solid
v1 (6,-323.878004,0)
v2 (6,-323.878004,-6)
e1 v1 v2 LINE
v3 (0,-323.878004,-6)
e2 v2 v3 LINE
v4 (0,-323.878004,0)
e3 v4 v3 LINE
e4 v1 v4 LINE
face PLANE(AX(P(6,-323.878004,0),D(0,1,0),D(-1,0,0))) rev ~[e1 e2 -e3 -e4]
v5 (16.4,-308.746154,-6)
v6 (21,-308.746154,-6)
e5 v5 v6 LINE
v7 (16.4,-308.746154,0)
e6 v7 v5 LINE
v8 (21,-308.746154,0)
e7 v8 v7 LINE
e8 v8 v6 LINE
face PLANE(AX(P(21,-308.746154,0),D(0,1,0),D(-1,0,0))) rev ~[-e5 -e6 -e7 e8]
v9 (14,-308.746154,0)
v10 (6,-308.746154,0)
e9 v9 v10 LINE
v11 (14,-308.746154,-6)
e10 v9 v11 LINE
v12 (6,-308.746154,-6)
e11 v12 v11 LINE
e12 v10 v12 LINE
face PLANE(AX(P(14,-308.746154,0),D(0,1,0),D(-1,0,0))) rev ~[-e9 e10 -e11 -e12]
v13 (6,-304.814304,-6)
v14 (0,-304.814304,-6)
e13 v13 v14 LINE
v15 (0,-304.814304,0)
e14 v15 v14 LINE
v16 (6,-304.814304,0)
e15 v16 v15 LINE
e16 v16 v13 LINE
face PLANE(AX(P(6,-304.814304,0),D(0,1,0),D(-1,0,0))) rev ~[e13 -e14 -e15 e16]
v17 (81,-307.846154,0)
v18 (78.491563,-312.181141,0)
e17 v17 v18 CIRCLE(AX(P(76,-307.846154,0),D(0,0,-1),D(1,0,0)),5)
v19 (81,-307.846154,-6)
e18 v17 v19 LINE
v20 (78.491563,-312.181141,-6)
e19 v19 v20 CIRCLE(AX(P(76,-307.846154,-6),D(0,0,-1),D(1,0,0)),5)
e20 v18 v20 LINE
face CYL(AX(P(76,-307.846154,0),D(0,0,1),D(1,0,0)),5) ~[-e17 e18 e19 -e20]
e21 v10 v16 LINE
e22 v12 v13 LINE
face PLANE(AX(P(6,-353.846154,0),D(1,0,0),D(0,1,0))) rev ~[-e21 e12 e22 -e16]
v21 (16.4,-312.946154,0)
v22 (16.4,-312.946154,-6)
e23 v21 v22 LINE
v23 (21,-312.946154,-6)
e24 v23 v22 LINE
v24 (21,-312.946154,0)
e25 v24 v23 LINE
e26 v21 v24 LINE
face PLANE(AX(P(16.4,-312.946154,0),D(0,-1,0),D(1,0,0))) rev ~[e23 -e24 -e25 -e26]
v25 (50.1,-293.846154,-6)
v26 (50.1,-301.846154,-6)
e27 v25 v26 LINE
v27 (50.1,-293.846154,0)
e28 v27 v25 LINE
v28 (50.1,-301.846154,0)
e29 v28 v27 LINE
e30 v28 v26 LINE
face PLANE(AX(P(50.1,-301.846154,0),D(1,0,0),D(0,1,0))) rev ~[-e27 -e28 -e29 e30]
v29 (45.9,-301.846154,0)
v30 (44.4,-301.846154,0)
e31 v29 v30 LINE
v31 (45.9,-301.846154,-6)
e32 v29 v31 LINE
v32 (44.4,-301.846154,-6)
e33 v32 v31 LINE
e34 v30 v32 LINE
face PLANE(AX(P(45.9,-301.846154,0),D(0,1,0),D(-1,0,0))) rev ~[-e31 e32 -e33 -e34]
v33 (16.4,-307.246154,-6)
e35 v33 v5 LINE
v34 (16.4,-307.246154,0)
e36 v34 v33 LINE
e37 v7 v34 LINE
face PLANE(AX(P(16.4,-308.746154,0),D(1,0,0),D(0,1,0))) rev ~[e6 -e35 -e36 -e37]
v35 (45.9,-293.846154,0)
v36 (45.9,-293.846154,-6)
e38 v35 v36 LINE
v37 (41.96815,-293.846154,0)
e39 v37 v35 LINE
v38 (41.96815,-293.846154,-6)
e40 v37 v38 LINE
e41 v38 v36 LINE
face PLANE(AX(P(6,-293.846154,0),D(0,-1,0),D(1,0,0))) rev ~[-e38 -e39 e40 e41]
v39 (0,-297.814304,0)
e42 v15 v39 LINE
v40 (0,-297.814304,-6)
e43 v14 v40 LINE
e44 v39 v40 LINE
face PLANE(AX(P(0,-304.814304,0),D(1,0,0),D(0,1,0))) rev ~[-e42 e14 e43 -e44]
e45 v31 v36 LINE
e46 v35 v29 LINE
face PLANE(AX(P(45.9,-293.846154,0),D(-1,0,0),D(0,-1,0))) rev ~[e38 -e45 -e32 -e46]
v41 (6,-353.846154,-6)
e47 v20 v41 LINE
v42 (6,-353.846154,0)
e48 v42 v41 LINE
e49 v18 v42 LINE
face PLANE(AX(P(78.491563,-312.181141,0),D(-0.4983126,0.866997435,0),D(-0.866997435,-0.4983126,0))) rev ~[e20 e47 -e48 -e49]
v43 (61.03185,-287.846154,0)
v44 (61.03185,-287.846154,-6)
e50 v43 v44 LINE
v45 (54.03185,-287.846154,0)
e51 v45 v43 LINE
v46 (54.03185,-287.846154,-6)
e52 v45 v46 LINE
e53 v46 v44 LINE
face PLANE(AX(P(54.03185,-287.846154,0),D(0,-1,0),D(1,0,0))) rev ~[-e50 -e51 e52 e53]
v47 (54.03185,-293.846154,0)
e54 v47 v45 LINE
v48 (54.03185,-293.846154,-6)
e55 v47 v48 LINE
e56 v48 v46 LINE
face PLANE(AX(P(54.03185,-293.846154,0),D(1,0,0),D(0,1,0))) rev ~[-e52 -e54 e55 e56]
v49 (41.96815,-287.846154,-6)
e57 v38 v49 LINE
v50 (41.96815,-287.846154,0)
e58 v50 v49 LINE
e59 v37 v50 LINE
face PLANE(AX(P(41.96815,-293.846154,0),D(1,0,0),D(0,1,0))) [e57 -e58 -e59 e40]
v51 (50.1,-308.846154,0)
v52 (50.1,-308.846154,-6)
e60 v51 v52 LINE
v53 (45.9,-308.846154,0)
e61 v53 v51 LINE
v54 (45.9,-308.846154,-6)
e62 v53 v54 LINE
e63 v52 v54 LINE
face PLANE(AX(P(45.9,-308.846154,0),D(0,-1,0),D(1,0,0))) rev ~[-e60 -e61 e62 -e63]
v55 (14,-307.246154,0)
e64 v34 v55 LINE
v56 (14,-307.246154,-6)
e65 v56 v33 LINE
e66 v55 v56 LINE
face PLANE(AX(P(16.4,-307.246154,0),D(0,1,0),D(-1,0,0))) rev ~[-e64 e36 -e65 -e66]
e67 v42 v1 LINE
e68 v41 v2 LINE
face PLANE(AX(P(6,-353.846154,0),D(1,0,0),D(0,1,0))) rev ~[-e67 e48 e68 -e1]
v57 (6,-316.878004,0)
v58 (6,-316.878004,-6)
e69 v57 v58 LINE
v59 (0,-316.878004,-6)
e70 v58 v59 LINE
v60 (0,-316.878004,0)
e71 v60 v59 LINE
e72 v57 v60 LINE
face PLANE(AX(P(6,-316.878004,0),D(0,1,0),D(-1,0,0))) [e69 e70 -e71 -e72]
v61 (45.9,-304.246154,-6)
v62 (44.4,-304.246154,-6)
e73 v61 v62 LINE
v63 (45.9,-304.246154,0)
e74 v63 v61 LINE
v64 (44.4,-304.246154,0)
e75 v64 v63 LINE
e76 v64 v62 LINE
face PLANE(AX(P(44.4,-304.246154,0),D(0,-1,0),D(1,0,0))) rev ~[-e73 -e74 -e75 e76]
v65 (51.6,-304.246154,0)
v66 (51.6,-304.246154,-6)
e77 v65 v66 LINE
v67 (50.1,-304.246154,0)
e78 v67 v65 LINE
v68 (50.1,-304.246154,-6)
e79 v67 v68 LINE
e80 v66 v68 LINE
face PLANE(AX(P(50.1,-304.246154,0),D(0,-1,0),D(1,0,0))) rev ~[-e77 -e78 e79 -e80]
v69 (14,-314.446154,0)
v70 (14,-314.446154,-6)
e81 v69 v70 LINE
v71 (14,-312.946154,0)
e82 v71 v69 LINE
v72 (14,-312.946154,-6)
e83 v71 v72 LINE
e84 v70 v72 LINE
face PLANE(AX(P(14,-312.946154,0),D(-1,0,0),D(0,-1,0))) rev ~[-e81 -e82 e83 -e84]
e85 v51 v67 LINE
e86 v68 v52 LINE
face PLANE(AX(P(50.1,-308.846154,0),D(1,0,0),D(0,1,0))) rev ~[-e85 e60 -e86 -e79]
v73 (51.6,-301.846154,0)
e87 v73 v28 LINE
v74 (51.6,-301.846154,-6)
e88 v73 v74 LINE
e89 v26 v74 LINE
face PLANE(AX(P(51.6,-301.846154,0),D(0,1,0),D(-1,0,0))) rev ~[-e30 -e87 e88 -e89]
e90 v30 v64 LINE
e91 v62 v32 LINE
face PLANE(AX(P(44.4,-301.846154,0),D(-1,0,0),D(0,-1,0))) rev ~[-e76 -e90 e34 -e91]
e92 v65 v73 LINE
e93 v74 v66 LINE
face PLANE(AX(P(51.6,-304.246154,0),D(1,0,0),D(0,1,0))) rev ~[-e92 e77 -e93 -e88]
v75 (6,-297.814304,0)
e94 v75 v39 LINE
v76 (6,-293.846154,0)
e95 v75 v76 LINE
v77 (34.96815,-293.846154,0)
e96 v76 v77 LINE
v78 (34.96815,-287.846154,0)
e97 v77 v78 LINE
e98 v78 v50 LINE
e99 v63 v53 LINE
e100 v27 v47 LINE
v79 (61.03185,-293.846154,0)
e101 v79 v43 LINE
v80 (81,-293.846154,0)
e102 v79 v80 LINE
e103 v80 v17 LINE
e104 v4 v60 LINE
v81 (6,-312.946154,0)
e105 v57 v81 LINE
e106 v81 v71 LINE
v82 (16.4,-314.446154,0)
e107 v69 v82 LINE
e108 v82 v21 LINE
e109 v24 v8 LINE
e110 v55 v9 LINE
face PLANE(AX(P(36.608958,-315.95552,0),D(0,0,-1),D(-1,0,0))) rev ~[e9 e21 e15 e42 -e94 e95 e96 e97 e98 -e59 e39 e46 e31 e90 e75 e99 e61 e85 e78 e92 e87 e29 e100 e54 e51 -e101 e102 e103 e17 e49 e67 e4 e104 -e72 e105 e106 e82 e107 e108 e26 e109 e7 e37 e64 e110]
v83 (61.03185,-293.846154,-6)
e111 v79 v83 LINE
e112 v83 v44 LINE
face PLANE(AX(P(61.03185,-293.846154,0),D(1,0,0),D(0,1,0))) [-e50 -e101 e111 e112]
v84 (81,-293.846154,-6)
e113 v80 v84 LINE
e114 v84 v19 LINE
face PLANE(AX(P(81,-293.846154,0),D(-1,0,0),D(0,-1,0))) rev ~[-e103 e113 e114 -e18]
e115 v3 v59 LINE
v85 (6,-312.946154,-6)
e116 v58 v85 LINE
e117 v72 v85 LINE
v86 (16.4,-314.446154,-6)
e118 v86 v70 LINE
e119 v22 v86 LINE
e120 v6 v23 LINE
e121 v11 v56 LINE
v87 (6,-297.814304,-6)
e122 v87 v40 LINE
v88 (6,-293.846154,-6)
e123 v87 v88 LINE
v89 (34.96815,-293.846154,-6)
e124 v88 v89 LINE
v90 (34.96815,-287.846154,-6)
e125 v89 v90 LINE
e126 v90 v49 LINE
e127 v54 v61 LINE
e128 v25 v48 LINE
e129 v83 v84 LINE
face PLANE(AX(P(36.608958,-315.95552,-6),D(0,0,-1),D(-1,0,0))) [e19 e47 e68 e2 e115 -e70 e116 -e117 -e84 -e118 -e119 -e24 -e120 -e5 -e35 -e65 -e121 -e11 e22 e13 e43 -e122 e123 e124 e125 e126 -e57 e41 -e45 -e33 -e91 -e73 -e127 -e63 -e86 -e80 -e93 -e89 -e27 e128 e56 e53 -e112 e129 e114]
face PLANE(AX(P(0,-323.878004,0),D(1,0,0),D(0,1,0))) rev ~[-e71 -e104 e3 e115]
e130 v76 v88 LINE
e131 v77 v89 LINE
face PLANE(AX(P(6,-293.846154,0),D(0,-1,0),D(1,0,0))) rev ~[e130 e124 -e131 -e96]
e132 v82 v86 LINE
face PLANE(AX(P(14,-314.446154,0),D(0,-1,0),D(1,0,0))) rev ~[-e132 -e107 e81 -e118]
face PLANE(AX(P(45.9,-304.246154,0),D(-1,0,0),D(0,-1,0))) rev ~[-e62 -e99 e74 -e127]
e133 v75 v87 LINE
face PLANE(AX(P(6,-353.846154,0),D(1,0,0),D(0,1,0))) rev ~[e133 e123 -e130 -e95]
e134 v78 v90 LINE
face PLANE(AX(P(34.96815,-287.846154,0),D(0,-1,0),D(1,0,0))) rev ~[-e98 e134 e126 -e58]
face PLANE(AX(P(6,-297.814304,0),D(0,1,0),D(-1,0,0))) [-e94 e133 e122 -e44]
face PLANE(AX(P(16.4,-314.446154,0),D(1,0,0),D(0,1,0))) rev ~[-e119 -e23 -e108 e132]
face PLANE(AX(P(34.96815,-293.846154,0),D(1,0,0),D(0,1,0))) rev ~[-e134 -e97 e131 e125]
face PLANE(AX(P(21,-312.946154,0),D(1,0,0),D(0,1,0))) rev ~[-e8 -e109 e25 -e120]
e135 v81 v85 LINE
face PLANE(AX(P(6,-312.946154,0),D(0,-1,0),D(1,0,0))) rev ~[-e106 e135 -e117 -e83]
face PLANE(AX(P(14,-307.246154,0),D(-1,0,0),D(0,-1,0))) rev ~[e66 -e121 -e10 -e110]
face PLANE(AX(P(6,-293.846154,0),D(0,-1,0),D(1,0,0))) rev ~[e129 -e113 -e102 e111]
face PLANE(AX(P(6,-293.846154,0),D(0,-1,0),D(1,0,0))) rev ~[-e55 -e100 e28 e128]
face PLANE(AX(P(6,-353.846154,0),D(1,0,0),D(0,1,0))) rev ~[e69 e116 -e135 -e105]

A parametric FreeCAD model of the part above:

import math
import FreeCAD as App
import Part
import Sketcher
from FreeCAD import Vector
Q = App.Units.Quantity

doc = App.newDocument("Part")
body = doc.addObject("PartDesign::Body", "Body")

# Sketch on XY plane
sketch1 = body.newObject("Sketcher::SketchObject", "Sketch")
sketch1.AttachmentSupport = (doc.getObject("XY_Plane"), [""])
sketch1.MapMode = "FlatFace"
sketch1.addGeometry(Part.LineSegment(Vector(81, -308, 0), Vector(81, -294, 0)), False)
sketch1.addGeometry(Part.LineSegment(Vector(81, -294, 0), Vector(6, -294, 0)), False)
sketch1.addGeometry(Part.LineSegment(Vector(6, -294, 0), Vector(6, -354, 0)), False)
sketch1.addGeometry(Part.LineSegment(Vector(6, -354, 0), Vector(78, -312, 0)), False)
sketch1.addGeometry(Part.ArcOfCircle(Part.Circle(Vector(76, -308, 0), Vector(0, 0, 1), 5), math.radians(-60), math.radians(0)), False)
sketch1.addConstraint(Sketcher.Constraint("Coincident", 0, 2, 1, 1))
sketch1.addConstraint(Sketcher.Constraint("Coincident", 1, 2, 2, 1))
sketch1.addConstraint(Sketcher.Constraint("Coincident", 2, 2, 3, 1))
sketch1.addConstraint(Sketcher.Constraint("Tangent", 3, 2, 4, 1))
sketch1.addConstraint(Sketcher.Constraint("Tangent", 4, 2, 0, 1))
sketch1.addConstraint(Sketcher.Constraint("Vertical", 0))
sketch1.addConstraint(Sketcher.Constraint("Horizontal", 1))
sketch1.addConstraint(Sketcher.Constraint("Vertical", 2))
sketch1.addConstraint(Sketcher.Constraint("Radius", 4, Q("5 mm")))
sketch1.addConstraint(Sketcher.Constraint("DistanceX", 1, 2, 1, 1, Q("75 mm")))
sketch1.addConstraint(Sketcher.Constraint("DistanceY", 0, 1, 0, 2, Q("14 mm")))
sketch1.addConstraint(Sketcher.Constraint("DistanceY", 2, 2, 2, 1, Q("60 mm")))
sketch1.addConstraint(Sketcher.Constraint("DistanceX", -1, 1, 4, 3, Q("76 mm")))
sketch1.addConstraint(Sketcher.Constraint("DistanceY", 3, 2, -1, 1, Q("312.181141 mm")))
pad1 = body.newObject("PartDesign::Pad", "Pad")
pad1.Profile = sketch1
pad1.Length = 6
pad1.Reversed = True

# Sketch on XY plane
sketch2 = body.newObject("Sketcher::SketchObject", "Sketch001")
sketch2.AttachmentSupport = (doc.getObject("XY_Plane"), [""])
sketch2.MapMode = "FlatFace"
sketch2.addGeometry(Part.LineSegment(Vector(0, -324, 0), Vector(6, -324, 0)), False)
sketch2.addGeometry(Part.LineSegment(Vector(6, -324, 0), Vector(6, -317, 0)), False)
sketch2.addGeometry(Part.LineSegment(Vector(6, -317, 0), Vector(0, -317, 0)), False)
sketch2.addGeometry(Part.LineSegment(Vector(0, -317, 0), Vector(0, -324, 0)), False)
sketch2.addGeometry(Part.LineSegment(Vector(0, -305, 0), Vector(6, -305, 0)), False)
sketch2.addGeometry(Part.LineSegment(Vector(6, -305, 0), Vector(6, -298, 0)), False)
sketch2.addGeometry(Part.LineSegment(Vector(6, -298, 0), Vector(0, -298, 0)), False)
sketch2.addGeometry(Part.LineSegment(Vector(0, -298, 0), Vector(0, -305, 0)), False)
sketch2.addConstraint(Sketcher.Constraint("Coincident", 0, 2, 1, 1))
sketch2.addConstraint(Sketcher.Constraint("Coincident", 1, 2, 2, 1))
sketch2.addConstraint(Sketcher.Constraint("Coincident", 2, 2, 3, 1))
sketch2.addConstraint(Sketcher.Constraint("Coincident", 3, 2, 0, 1))
sketch2.addConstraint(Sketcher.Constraint("Coincident", 4, 2, 5, 1))
sketch2.addConstraint(Sketcher.Constraint("Coincident", 5, 2, 6, 1))
sketch2.addConstraint(Sketcher.Constraint("Coincident", 6, 2, 7, 1))
sketch2.addConstraint(Sketcher.Constraint("Coincident", 7, 2, 4, 1))
sketch2.addConstraint(Sketcher.Constraint("Horizontal", 0))
sketch2.addConstraint(Sketcher.Constraint("Vertical", 1))
sketch2.addConstraint(Sketcher.Constraint("Horizontal", 2))
sketch2.addConstraint(Sketcher.Constraint("Vertical", 3))
sketch2.addConstraint(Sketcher.Constraint("Horizontal", 4))
sketch2.addConstraint(Sketcher.Constraint("Vertical", 5))
sketch2.addConstraint(Sketcher.Constraint("Horizontal", 6))
sketch2.addConstraint(Sketcher.Constraint("Vertical", 7))
sketch2.addConstraint(Sketcher.Constraint("PointOnObject", 2, 2, -2))
sketch2.addConstraint(Sketcher.Constraint("PointOnObject", 6, 2, -2))
sketch2.addConstraint(Sketcher.Constraint("Vertical", 1, 2, 4, 2))
sketch2.addConstraint(Sketcher.Constraint("Equal", 3, 5))
sketch2.addConstraint(Sketcher.Constraint("DistanceX", 0, 1, 0, 2, Q("6 mm")))
sketch2.addConstraint(Sketcher.Constraint("DistanceY", 1, 1, 1, 2, Q("7 mm")))
sketch2.addConstraint(Sketcher.Constraint("DistanceY", 1, 2, 4, 2, Q("12.0637 mm")))
sketch2.addConstraint(Sketcher.Constraint("DistanceY", 0, 2, -1, 1, Q("323.878004 mm")))
pad2 = body.newObject("PartDesign::Pad", "Pad001")
pad2.Profile = sketch2
pad2.Length = 6
pad2.Reversed = True

# Sketch on XY plane
sketch3 = body.newObject("Sketcher::SketchObject", "Sketch002")
sketch3.AttachmentSupport = (doc.getObject("XY_Plane"), [""])
sketch3.MapMode = "FlatFace"
sketch3.addGeometry(Part.LineSegment(Vector(14, -312.9, 0), Vector(14, -314.4, 0)), False)
sketch3.addGeometry(Part.LineSegment(Vector(14, -314.4, 0), Vector(16.4, -314.4, 0)), False)
sketch3.addGeometry(Part.LineSegment(Vector(16.4, -314.4, 0), Vector(16.4, -312.9, 0)), False)
sketch3.addGeometry(Part.LineSegment(Vector(16.4, -312.9, 0), Vector(21, -312.9, 0)), False)
sketch3.addGeometry(Part.LineSegment(Vector(21, -312.9, 0), Vector(21, -308.7, 0)), False)
sketch3.addGeometry(Part.LineSegment(Vector(21, -308.7, 0), Vector(16.4, -308.7, 0)), False)
sketch3.addGeometry(Part.LineSegment(Vector(16.4, -308.7, 0), Vector(16.4, -307.2, 0)), False)
sketch3.addGeometry(Part.LineSegment(Vector(16.4, -307.2, 0), Vector(14, -307.2, 0)), False)
sketch3.addGeometry(Part.LineSegment(Vector(14, -307.2, 0), Vector(14, -308.7, 0)), False)
sketch3.addGeometry(Part.LineSegment(Vector(14, -308.7, 0), Vector(6, -308.7, 0)), False)
sketch3.addGeometry(Part.LineSegment(Vector(6, -308.7, 0), Vector(6, -312.9, 0)), False)
sketch3.addGeometry(Part.LineSegment(Vector(6, -312.9, 0), Vector(14, -312.9, 0)), False)
sketch3.addConstraint(Sketcher.Constraint("Coincident", 0, 2, 1, 1))
sketch3.addConstraint(Sketcher.Constraint("Coincident", 1, 2, 2, 1))
sketch3.addConstraint(Sketcher.Constraint("Coincident", 2, 2, 3, 1))
sketch3.addConstraint(Sketcher.Constraint("Coincident", 3, 2, 4, 1))
sketch3.addConstraint(Sketcher.Constraint("Coincident", 4, 2, 5, 1))
sketch3.addConstraint(Sketcher.Constraint("Coincident", 5, 2, 6, 1))
sketch3.addConstraint(Sketcher.Constraint("Coincident", 6, 2, 7, 1))
sketch3.addConstraint(Sketcher.Constraint("Coincident", 7, 2, 8, 1))
sketch3.addConstraint(Sketcher.Constraint("Coincident", 8, 2, 9, 1))
sketch3.addConstraint(Sketcher.Constraint("Coincident", 9, 2, 10, 1))
sketch3.addConstraint(Sketcher.Constraint("Coincident", 10, 2, 11, 1))
sketch3.addConstraint(Sketcher.Constraint("Coincident", 11, 2, 0, 1))
sketch3.addConstraint(Sketcher.Constraint("Vertical", 0))
sketch3.addConstraint(Sketcher.Constraint("Horizontal", 1))
sketch3.addConstraint(Sketcher.Constraint("Vertical", 2))
sketch3.addConstraint(Sketcher.Constraint("Horizontal", 3))
sketch3.addConstraint(Sketcher.Constraint("Vertical", 4))
sketch3.addConstraint(Sketcher.Constraint("Horizontal", 5))
sketch3.addConstraint(Sketcher.Constraint("Vertical", 6))
sketch3.addConstraint(Sketcher.Constraint("Horizontal", 7))
sketch3.addConstraint(Sketcher.Constraint("Vertical", 8))
sketch3.addConstraint(Sketcher.Constraint("Horizontal", 9))
sketch3.addConstraint(Sketcher.Constraint("Vertical", 10))
sketch3.addConstraint(Sketcher.Constraint("Horizontal", 11))
sketch3.addConstraint(Sketcher.Constraint("Horizontal", 5, 2, 8, 2))
sketch3.addConstraint(Sketcher.Constraint("Horizontal", 3, 2, 10, 2))
sketch3.addConstraint(Sketcher.Constraint("Vertical", 2, 2, 5, 2))
sketch3.addConstraint(Sketcher.Constraint("Vertical", 0, 2, 7, 2))
sketch3.addConstraint(Sketcher.Constraint("Equal", 2, 6))
sketch3.addConstraint(Sketcher.Constraint("DistanceX", 9, 2, 9, 1, Q("8 mm")))
sketch3.addConstraint(Sketcher.Constraint("DistanceX", 1, 1, 1, 2, Q("2.4 mm")))
sketch3.addConstraint(Sketcher.Constraint("DistanceX", 3, 1, 3, 2, Q("4.6 mm")))
sketch3.addConstraint(Sketcher.Constraint("DistanceY", 0, 2, 0, 1, Q("1.5 mm")))
sketch3.addConstraint(Sketcher.Constraint("DistanceY", 4, 1, 4, 2, Q("4.2 mm")))
sketch3.addConstraint(Sketcher.Constraint("DistanceX", -1, 1, 0, 2, Q("14 mm")))
sketch3.addConstraint(Sketcher.Constraint("DistanceY", 0, 2, -1, 1, Q("314.446154 mm")))
pocket1 = body.newObject("PartDesign::Pocket", "Pocket")
pocket1.Profile = sketch3
pocket1.Type = "ThroughAll"

# Sketch on XY plane
sketch4 = body.newObject("Sketcher::SketchObject", "Sketch003")
sketch4.AttachmentSupport = (doc.getObject("XY_Plane"), [""])
sketch4.MapMode = "FlatFace"
sketch4.addGeometry(Part.LineSegment(Vector(35, -288, 0), Vector(35, -294, 0)), False)
sketch4.addGeometry(Part.LineSegment(Vector(35, -294, 0), Vector(42, -294, 0)), False)
sketch4.addGeometry(Part.LineSegment(Vector(42, -294, 0), Vector(42, -288, 0)), False)
sketch4.addGeometry(Part.LineSegment(Vector(42, -288, 0), Vector(35, -288, 0)), False)
sketch4.addGeometry(Part.LineSegment(Vector(54, -288, 0), Vector(54, -294, 0)), False)
sketch4.addGeometry(Part.LineSegment(Vector(54, -294, 0), Vector(61, -294, 0)), False)
sketch4.addGeometry(Part.LineSegment(Vector(61, -294, 0), Vector(61, -288, 0)), False)
sketch4.addGeometry(Part.LineSegment(Vector(61, -288, 0), Vector(54, -288, 0)), False)
sketch4.addConstraint(Sketcher.Constraint("Coincident", 0, 2, 1, 1))
sketch4.addConstraint(Sketcher.Constraint("Coincident", 1, 2, 2, 1))
sketch4.addConstraint(Sketcher.Constraint("Coincident", 2, 2, 3, 1))
sketch4.addConstraint(Sketcher.Constraint("Coincident", 3, 2, 0, 1))
sketch4.addConstraint(Sketcher.Constraint("Coincident", 4, 2, 5, 1))
sketch4.addConstraint(Sketcher.Constraint("Coincident", 5, 2, 6, 1))
sketch4.addConstraint(Sketcher.Constraint("Coincident", 6, 2, 7, 1))
sketch4.addConstraint(Sketcher.Constraint("Coincident", 7, 2, 4, 1))
sketch4.addConstraint(Sketcher.Constraint("Vertical", 0))
sketch4.addConstraint(Sketcher.Constraint("Horizontal", 1))
sketch4.addConstraint(Sketcher.Constraint("Vertical", 2))
sketch4.addConstraint(Sketcher.Constraint("Horizontal", 3))
sketch4.addConstraint(Sketcher.Constraint("Vertical", 4))
sketch4.addConstraint(Sketcher.Constraint("Horizontal", 5))
sketch4.addConstraint(Sketcher.Constraint("Vertical", 6))
sketch4.addConstraint(Sketcher.Constraint("Horizontal", 7))
sketch4.addConstraint(Sketcher.Constraint("Horizontal", 1, 2, 4, 2))
sketch4.addConstraint(Sketcher.Constraint("Horizontal", 3, 2, 6, 2))
sketch4.addConstraint(Sketcher.Constraint("Equal", 3, 5))
sketch4.addConstraint(Sketcher.Constraint("DistanceX", 1, 1, 1, 2, Q("7 mm")))
sketch4.addConstraint(Sketcher.Constraint("DistanceY", 0, 2, 0, 1, Q("6 mm")))
sketch4.addConstraint(Sketcher.Constraint("DistanceX", 1, 2, 4, 2, Q("12.0637 mm")))
sketch4.addConstraint(Sketcher.Constraint("DistanceX", -1, 1, 0, 2, Q("34.96815 mm")))
sketch4.addConstraint(Sketcher.Constraint("DistanceY", 0, 2, -1, 1, Q("293.846154 mm")))
pad3 = body.newObject("PartDesign::Pad", "Pad002")
pad3.Profile = sketch4
pad3.Length = 6
pad3.Reversed = True

# Sketch on XY plane
sketch5 = body.newObject("Sketcher::SketchObject", "Sketch004")
sketch5.AttachmentSupport = (doc.getObject("XY_Plane"), [""])
sketch5.MapMode = "FlatFace"
sketch5.addGeometry(Part.LineSegment(Vector(45.9, -301.8, 0), Vector(44.4, -301.8, 0)), False)
sketch5.addGeometry(Part.LineSegment(Vector(44.4, -301.8, 0), Vector(44.4, -304.2, 0)), False)
sketch5.addGeometry(Part.LineSegment(Vector(44.4, -304.2, 0), Vector(45.9, -304.2, 0)), False)
sketch5.addGeometry(Part.LineSegment(Vector(45.9, -304.2, 0), Vector(45.9, -308.8, 0)), False)
sketch5.addGeometry(Part.LineSegment(Vector(45.9, -308.8, 0), Vector(50.1, -308.8, 0)), False)
sketch5.addGeometry(Part.LineSegment(Vector(50.1, -308.8, 0), Vector(50.1, -304.2, 0)), False)
sketch5.addGeometry(Part.LineSegment(Vector(50.1, -304.2, 0), Vector(51.6, -304.2, 0)), False)
sketch5.addGeometry(Part.LineSegment(Vector(51.6, -304.2, 0), Vector(51.6, -301.8, 0)), False)
sketch5.addGeometry(Part.LineSegment(Vector(51.6, -301.8, 0), Vector(50.1, -301.8, 0)), False)
sketch5.addGeometry(Part.LineSegment(Vector(50.1, -301.8, 0), Vector(50.1, -293.8, 0)), False)
sketch5.addGeometry(Part.LineSegment(Vector(50.1, -293.8, 0), Vector(45.9, -293.8, 0)), False)
sketch5.addGeometry(Part.LineSegment(Vector(45.9, -293.8, 0), Vector(45.9, -301.8, 0)), False)
sketch5.addConstraint(Sketcher.Constraint("Coincident", 0, 2, 1, 1))
sketch5.addConstraint(Sketcher.Constraint("Coincident", 1, 2, 2, 1))
sketch5.addConstraint(Sketcher.Constraint("Coincident", 2, 2, 3, 1))
sketch5.addConstraint(Sketcher.Constraint("Coincident", 3, 2, 4, 1))
sketch5.addConstraint(Sketcher.Constraint("Coincident", 4, 2, 5, 1))
sketch5.addConstraint(Sketcher.Constraint("Coincident", 5, 2, 6, 1))
sketch5.addConstraint(Sketcher.Constraint("Coincident", 6, 2, 7, 1))
sketch5.addConstraint(Sketcher.Constraint("Coincident", 7, 2, 8, 1))
sketch5.addConstraint(Sketcher.Constraint("Coincident", 8, 2, 9, 1))
sketch5.addConstraint(Sketcher.Constraint("Coincident", 9, 2, 10, 1))
sketch5.addConstraint(Sketcher.Constraint("Coincident", 10, 2, 11, 1))
sketch5.addConstraint(Sketcher.Constraint("Coincident", 11, 2, 0, 1))
sketch5.addConstraint(Sketcher.Constraint("Horizontal", 0))
sketch5.addConstraint(Sketcher.Constraint("Vertical", 1))
sketch5.addConstraint(Sketcher.Constraint("Horizontal", 2))
sketch5.addConstraint(Sketcher.Constraint("Vertical", 3))
sketch5.addConstraint(Sketcher.Constraint("Horizontal", 4))
sketch5.addConstraint(Sketcher.Constraint("Vertical", 5))
sketch5.addConstraint(Sketcher.Constraint("Horizontal", 6))
sketch5.addConstraint(Sketcher.Constraint("Vertical", 7))
sketch5.addConstraint(Sketcher.Constraint("Horizontal", 8))
sketch5.addConstraint(Sketcher.Constraint("Vertical", 9))
sketch5.addConstraint(Sketcher.Constraint("Horizontal", 10))
sketch5.addConstraint(Sketcher.Constraint("Vertical", 11))
sketch5.addConstraint(Sketcher.Constraint("Horizontal", 2, 2, 5, 2))
sketch5.addConstraint(Sketcher.Constraint("Horizontal", 0, 2, 7, 2))
sketch5.addConstraint(Sketcher.Constraint("Vertical", 5, 2, 8, 2))
sketch5.addConstraint(Sketcher.Constraint("Vertical", 3, 2, 10, 2))
sketch5.addConstraint(Sketcher.Constraint("Equal", 2, 6))
sketch5.addConstraint(Sketcher.Constraint("DistanceY", 9, 1, 9, 2, Q("8 mm")))
sketch5.addConstraint(Sketcher.Constraint("DistanceX", 0, 2, 0, 1, Q("1.5 mm")))
sketch5.addConstraint(Sketcher.Constraint("DistanceX", 4, 1, 4, 2, Q("4.2 mm")))
sketch5.addConstraint(Sketcher.Constraint("DistanceY", 1, 2, 1, 1, Q("2.4 mm")))
sketch5.addConstraint(Sketcher.Constraint("DistanceY", 3, 2, 3, 1, Q("4.6 mm")))
sketch5.addConstraint(Sketcher.Constraint("DistanceX", -1, 1, 0, 2, Q("44.4 mm")))
sketch5.addConstraint(Sketcher.Constraint("DistanceY", 0, 2, -1, 1, Q("301.846154 mm")))
pocket2 = body.newObject("PartDesign::Pocket", "Pocket001")
pocket2.Profile = sketch5
pocket2.Type = "ThroughAll"

doc.recompute()
